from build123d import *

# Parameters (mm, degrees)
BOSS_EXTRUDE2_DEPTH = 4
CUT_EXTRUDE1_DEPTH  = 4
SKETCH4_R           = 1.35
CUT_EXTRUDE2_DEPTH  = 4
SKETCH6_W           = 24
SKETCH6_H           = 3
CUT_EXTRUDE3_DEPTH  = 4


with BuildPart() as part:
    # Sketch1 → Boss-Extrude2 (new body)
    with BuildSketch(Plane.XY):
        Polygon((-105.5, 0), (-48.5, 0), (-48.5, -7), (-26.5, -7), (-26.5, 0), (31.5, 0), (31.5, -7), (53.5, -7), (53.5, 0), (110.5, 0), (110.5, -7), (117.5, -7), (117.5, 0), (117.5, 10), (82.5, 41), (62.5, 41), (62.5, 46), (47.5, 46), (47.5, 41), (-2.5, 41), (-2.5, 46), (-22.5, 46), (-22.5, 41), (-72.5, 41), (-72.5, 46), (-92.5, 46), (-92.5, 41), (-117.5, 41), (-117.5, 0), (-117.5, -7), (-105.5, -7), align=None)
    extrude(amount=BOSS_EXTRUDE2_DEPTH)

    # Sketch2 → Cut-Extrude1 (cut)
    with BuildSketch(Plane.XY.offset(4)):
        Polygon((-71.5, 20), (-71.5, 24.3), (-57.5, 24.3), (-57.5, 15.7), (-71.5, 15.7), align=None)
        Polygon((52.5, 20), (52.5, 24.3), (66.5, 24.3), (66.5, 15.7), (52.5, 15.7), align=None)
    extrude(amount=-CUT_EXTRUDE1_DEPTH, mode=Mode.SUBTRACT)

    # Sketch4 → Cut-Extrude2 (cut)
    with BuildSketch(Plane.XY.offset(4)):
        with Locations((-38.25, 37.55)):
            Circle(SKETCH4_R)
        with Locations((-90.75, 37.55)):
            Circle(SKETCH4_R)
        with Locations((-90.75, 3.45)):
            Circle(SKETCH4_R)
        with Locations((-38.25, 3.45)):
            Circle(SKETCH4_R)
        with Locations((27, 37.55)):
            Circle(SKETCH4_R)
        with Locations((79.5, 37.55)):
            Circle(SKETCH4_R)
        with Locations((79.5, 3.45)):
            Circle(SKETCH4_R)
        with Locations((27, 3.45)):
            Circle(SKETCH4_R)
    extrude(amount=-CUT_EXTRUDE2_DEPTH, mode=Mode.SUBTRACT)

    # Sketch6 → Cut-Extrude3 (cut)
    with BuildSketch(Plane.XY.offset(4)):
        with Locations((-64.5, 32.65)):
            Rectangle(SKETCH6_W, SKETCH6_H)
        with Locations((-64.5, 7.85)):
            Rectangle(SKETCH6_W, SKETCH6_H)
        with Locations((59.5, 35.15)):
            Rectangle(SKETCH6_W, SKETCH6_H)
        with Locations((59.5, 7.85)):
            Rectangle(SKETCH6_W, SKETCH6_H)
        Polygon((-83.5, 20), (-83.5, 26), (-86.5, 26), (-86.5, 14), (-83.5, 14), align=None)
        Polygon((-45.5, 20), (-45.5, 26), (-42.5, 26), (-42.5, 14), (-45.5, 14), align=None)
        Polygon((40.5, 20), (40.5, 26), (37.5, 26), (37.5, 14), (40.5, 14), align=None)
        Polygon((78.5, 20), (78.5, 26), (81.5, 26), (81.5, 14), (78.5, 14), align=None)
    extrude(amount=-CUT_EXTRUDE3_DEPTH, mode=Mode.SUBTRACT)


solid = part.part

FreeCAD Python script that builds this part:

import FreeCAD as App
import Part
import Sketcher
from FreeCAD import Vector

doc = App.newDocument("Part")
body = doc.addObject("PartDesign::Body", "Body")

# Sketch on XY plane
sketch1 = body.newObject("Sketcher::SketchObject", "Sketch")
sketch1.AttachmentSupport = (doc.getObject("XY_Plane"), [""])
sketch1.MapMode = "FlatFace"
sketch1.addGeometry(Part.LineSegment(Vector(-106, 0, 0), Vector(-48, 0, 0)), False)
sketch1.addGeometry(Part.LineSegment(Vector(-48, 0, 0), Vector(-48, -7, 0)), False)
sketch1.addGeometry(Part.LineSegment(Vector(-48, -7, 0), Vector(-26, -7, 0)), False)
sketch1.addGeometry(Part.LineSegment(Vector(-26, -7, 0), Vector(-26, 0, 0)), False)
sketch1.addGeometry(Part.LineSegment(Vector(-26, 0, 0), Vector(32, 0, 0)), False)
sketch1.addGeometry(Part.LineSegment(Vector(32, 0, 0), Vector(32, -7, 0)), False)
sketch1.addGeometry(Part.LineSegment(Vector(32, -7, 0), Vector(54, -7, 0)), False)
sketch1.addGeometry(Part.LineSegment(Vector(54, -7, 0), Vector(54, 0, 0)), False)
sketch1.addGeometry(Part.LineSegment(Vector(54, 0, 0), Vector(110, 0, 0)), False)
sketch1.addGeometry(Part.LineSegment(Vector(110, 0, 0), Vector(110, -7, 0)), False)
sketch1.addGeometry(Part.LineSegment(Vector(110, -7, 0), Vector(118, -7, 0)), False)
sketch1.addGeometry(Part.LineSegment(Vector(118, -7, 0), Vector(118, 10, 0)), False)
sketch1.addGeometry(Part.LineSegment(Vector(118, 10, 0), Vector(82, 41, 0)), False)
sketch1.addGeometry(Part.LineSegment(Vector(82, 41, 0), Vector(62, 41, 0)), False)
sketch1.addGeometry(Part.LineSegment(Vector(62, 41, 0), Vector(62, 46, 0)), False)
sketch1.addGeometry(Part.LineSegment(Vector(62, 46, 0), Vector(48, 46, 0)), False)
sketch1.addGeometry(Part.LineSegment(Vector(48, 46, 0), Vector(48, 41, 0)), False)
sketch1.addGeometry(Part.LineSegment(Vector(48, 41, 0), Vector(-2, 41, 0)), False)
sketch1.addGeometry(Part.LineSegment(Vector(-2, 41, 0), Vector(-2, 46, 0)), False)
sketch1.addGeometry(Part.LineSegment(Vector(-2, 46, 0), Vector(-22, 46, 0)), False)
sketch1.addGeometry(Part.LineSegment(Vector(-22, 46, 0), Vector(-22, 41, 0)), False)
sketch1.addGeometry(Part.LineSegment(Vector(-22, 41, 0), Vector(-72, 41, 0)), False)
sketch1.addGeometry(Part.LineSegment(Vector(-72, 41, 0), Vector(-72, 46, 0)), False)
sketch1.addGeometry(Part.LineSegment(Vector(-72, 46, 0), Vector(-92, 46, 0)), False)
sketch1.addGeometry(Part.LineSegment(Vector(-92, 46, 0), Vector(-92, 41, 0)), False)
sketch1.addGeometry(Part.LineSegment(Vector(-92, 41, 0), Vector(-118, 41, 0)), False)
sketch1.addGeometry(Part.LineSegment(Vector(-118, 41, 0), Vector(-118, -7, 0)), False)
sketch1.addGeometry(Part.LineSegment(Vector(-118, -7, 0), Vector(-106, -7, 0)), False)
sketch1.addGeometry(Part.LineSegment(Vector(-106, -7, 0), Vector(-106, 0, 0)), False)
sketch1.addConstraint(Sketcher.Constraint("Coincident", 0, 2, 1, 1))
sketch1.addConstraint(Sketcher.Constraint("Coincident", 1, 2, 2, 1))
sketch1.addConstraint(Sketcher.Constraint("Coincident", 2, 2, 3, 1))
sketch1.addConstraint(Sketcher.Constraint("Coincident", 3, 2, 4, 1))
sketch1.addConstraint(Sketcher.Constraint("Coincident", 4, 2, 5, 1))
sketch1.addConstraint(Sketcher.Constraint("Coincident", 5, 2, 6, 1))
sketch1.addConstraint(Sketcher.Constraint("Coincident", 6, 2, 7, 1))
sketch1.addConstraint(Sketcher.Constraint("Coincident", 7, 2, 8, 1))
sketch1.addConstraint(Sketcher.Constraint("Coincident", 8, 2, 9, 1))
sketch1.addConstraint(Sketcher.Constraint("Coincident", 9, 2, 10, 1))
sketch1.addConstraint(Sketcher.Constraint("Coincident", 10, 2, 11, 1))
sketch1.addConstraint(Sketcher.Constraint("Coincident", 11, 2, 12, 1))
sketch1.addConstraint(Sketcher.Constraint("Coincident", 12, 2, 13, 1))
sketch1.addConstraint(Sketcher.Constraint("Coincident", 13, 2, 14, 1))
sketch1.addConstraint(Sketcher.Constraint("Coincident", 14, 2, 15, 1))
sketch1.addConstraint(Sketcher.Constraint("Coincident", 15, 2, 16, 1))
sketch1.addConstraint(Sketcher.Constraint("Coincident", 16, 2, 17, 1))
sketch1.addConstraint(Sketcher.Constraint("Coincident", 17, 2, 18, 1))
sketch1.addConstraint(Sketcher.Constraint("Coincident", 18, 2, 19, 1))
sketch1.addConstraint(Sketcher.Constraint("Coincident", 19, 2, 20, 1))
sketch1.addConstraint(Sketcher.Constraint("Coincident", 20, 2, 21, 1))
sketch1.addConstraint(Sketcher.Constraint("Coincident", 21, 2, 22, 1))
sketch1.addConstraint(Sketcher.Constraint("Coincident", 22, 2, 23, 1))
sketch1.addConstraint(Sketcher.Constraint("Coincident", 23, 2, 24, 1))
sketch1.addConstraint(Sketcher.Constraint("Coincident", 24, 2, 25, 1))
sketch1.addConstraint(Sketcher.Constraint("Coincident", 25, 2, 26, 1))
sketch1.addConstraint(Sketcher.Constraint("Coincident", 26, 2, 27, 1))
sketch1.addConstraint(Sketcher.Constraint("Coincident", 27, 2, 28, 1))
sketch1.addConstraint(Sketcher.Constraint("Coincident", 28, 2, 0, 1))
sketch1.addConstraint(Sketcher.Constraint("Horizontal", 0))
sketch1.addConstraint(Sketcher.Constraint("Vertical", 1))
sketch1.addConstraint(Sketcher.Constraint("Horizontal", 2))
sketch1.addConstraint(Sketcher.Constraint("Vertical", 3))
sketch1.addConstraint(Sketcher.Constraint("Horizontal", 4))
sketch1.addConstraint(Sketcher.Constraint("Vertical", 5))
sketch1.addConstraint(Sketcher.Constraint("Horizontal", 6))
sketch1.addConstraint(Sketcher.Constraint("Vertical", 7))
sketch1.addConstraint(Sketcher.Constraint("Horizontal", 8))
sketch1.addConstraint(Sketcher.Constraint("Vertical", 9))
sketch1.addConstraint(Sketcher.Constraint("Horizontal", 10))
sketch1.addConstraint(Sketcher.Constraint("Vertical", 11))
sketch1.addConstraint(Sketcher.Constraint("Horizontal", 13))
sketch1.addConstraint(Sketcher.Constraint("Vertical", 14))
sketch1.addConstraint(Sketcher.Constraint("Horizontal", 15))
sketch1.addConstraint(Sketcher.Constraint("Vertical", 16))
sketch1.addConstraint(Sketcher.Constraint("Horizontal", 17))
sketch1.addConstraint(Sketcher.Constraint("Vertical", 18))
sketch1.addConstraint(Sketcher.Constraint("Horizontal", 19))
sketch1.addConstraint(Sketcher.Constraint("Vertical", 20))
sketch1.addConstraint(Sketcher.Constraint("Horizontal", 21))
sketch1.addConstraint(Sketcher.Constraint("Vertical", 22))
sketch1.addConstraint(Sketcher.Constraint("Horizontal", 23))
sketch1.addConstraint(Sketcher.Constraint("Vertical", 24))
sketch1.addConstraint(Sketcher.Constraint("Horizontal", 25))
sketch1.addConstraint(Sketcher.Constraint("Vertical", 26))
sketch1.addConstraint(Sketcher.Constraint("Horizontal", 27))
sketch1.addConstraint(Sketcher.Constraint("Vertical", 28))
sketch1.addConstraint(Sketcher.Constraint("Symmetric", 10, 2, 26, 2, -2))
sketch1.addConstraint(Sketcher.Constraint("PointOnObject", 0, 2, -1))
sketch1.addConstraint(Sketcher.Constraint("PointOnObject", 3, 2, -1))
sketch1.addConstraint(Sketcher.Constraint("PointOnObject", 7, 2, -1))
sketch1.addConstraint(Sketcher.Constraint("Horizontal", 2, 2, 5, 2))
sketch1.addConstraint(Sketcher.Constraint("Horizontal", 6, 2, 9, 2))
sketch1.addConstraint(Sketcher.Constraint("Horizontal", 13, 2, 16, 2))
sketch1.addConstraint(Sketcher.Constraint("Horizontal", 15, 2, 18, 2))
sketch1.addConstraint(Sketcher.Constraint("Horizontal", 17, 2, 20, 2))
sketch1.addConstraint(Sketcher.Constraint("Horizontal", 19, 2, 22, 2))
sketch1.addConstraint(Sketcher.Constraint("Horizontal", 21, 2, 24, 2))
sketch1.addConstraint(Sketcher.Constraint("Equal", 2, 6))
sketch1.addConstraint(Sketcher.Constraint("Equal", 0, 8))
sketch1.addConstraint(Sketcher.Constraint("Equal", 13, 19))
sketch1.addConstraint(Sketcher.Constraint("Equal", 17, 21))
sketch1.addConstraint(Sketcher.Constraint("Equal", 19, 23))
sketch1.addConstraint(Sketcher.Constraint("Equal", 10, 1))
sketch1.addConstraint(Sketcher.Constraint("DistanceX", 0, 1, 0, 2, 57.0))
sketch1.addConstraint(Sketcher.Constraint("DistanceX", 2, 1, 2, 2, 22.0))
sketch1.addConstraint(Sketcher.Constraint("DistanceX", 4, 1, 4, 2, 58.0))
sketch1.addConstraint(Sketcher.Constraint("DistanceX", 10, 1, 10, 2, 7.0))
sketch1.addConstraint(Sketcher.Constraint("DistanceX", 13, 2, 13, 1, 20.0))
sketch1.addConstraint(Sketcher.Constraint("DistanceX", 15, 2, 15, 1, 15.0))
sketch1.addConstraint(Sketcher.Constraint("DistanceX", 17, 2, 17, 1, 50.0))
sketch1.addConstraint(Sketcher.Constraint("DistanceX", 25, 2, 25, 1, 25.0))
sketch1.addConstraint(Sketcher.Constraint("DistanceX", 27, 1, 27, 2, 12.0))
sketch1.addConstraint(Sketcher.Constraint("DistanceY", 11, 1, 11, 2, 17.0))
sketch1.addConstraint(Sketcher.Constraint("DistanceY", 14, 1, 14, 2, 5.0))
sketch1.addConstraint(Sketcher.Constraint("DistanceY", 26, 2, 26, 1, 48.0))
pad1 = body.newObject("PartDesign::Pad", "Pad")
pad1.Profile = sketch1
pad1.Length = 4

# Sketch on XY plane
sketch2 = body.newObject("Sketcher::SketchObject", "Sketch001")
sketch2.AttachmentSupport = (doc.getObject("XY_Plane"), [""])
sketch2.MapMode = "FlatFace"
sketch2.AttachmentOffset = App.Placement(Vector(0, 0, 4), App.Rotation())
sketch2.addGeometry(Part.LineSegment(Vector(-72, 24, 0), Vector(-72, 16, 0)), False)
sketch2.addGeometry(Part.LineSegment(Vector(-72, 16, 0), Vector(-58, 16, 0)), False)
sketch2.addGeometry(Part.LineSegment(Vector(-58, 16, 0), Vector(-58, 24, 0)), False)
sketch2.addGeometry(Part.LineSegment(Vector(-58, 24, 0), Vector(-72, 24, 0)), False)
sketch2.addGeometry(Part.LineSegment(Vector(52, 24, 0), Vector(52, 16, 0)), False)
sketch2.addGeometry(Part.LineSegment(Vector(52, 16, 0), Vector(66, 16, 0)), False)
sketch2.addGeometry(Part.LineSegment(Vector(66, 16, 0), Vector(66, 24, 0)), False)
sketch2.addGeometry(Part.LineSegment(Vector(66, 24, 0), Vector(52, 24, 0)), False)
sketch2.addConstraint(Sketcher.Constraint("Coincident", 0, 2, 1, 1))
sketch2.addConstraint(Sketcher.Constraint("Coincident", 1, 2, 2, 1))
sketch2.addConstraint(Sketcher.Constraint("Coincident", 2, 2, 3, 1))
sketch2.addConstraint(Sketcher.Constraint("Coincident", 3, 2, 0, 1))
sketch2.addConstraint(Sketcher.Constraint("Coincident", 4, 2, 5, 1))
sketch2.addConstraint(Sketcher.Constraint("Coincident", 5, 2, 6, 1))
sketch2.addConstraint(Sketcher.Constraint("Coincident", 6, 2, 7, 1))
sketch2.addConstraint(Sketcher.Constraint("Coincident", 7, 2, 4, 1))
sketch2.addConstraint(Sketcher.Constraint("Vertical", 0))
sketch2.addConstraint(Sketcher.Constraint("Horizontal", 1))
sketch2.addConstraint(Sketcher.Constraint("Vertical", 2))
sketch2.addConstraint(Sketcher.Constraint("Horizontal", 3))
sketch2.addConstraint(Sketcher.Constraint("Vertical", 4))
sketch2.addConstraint(Sketcher.Constraint("Horizontal", 5))
sketch2.addConstraint(Sketcher.Constraint("Vertical", 6))
sketch2.addConstraint(Sketcher.Constraint("Horizontal", 7))
sketch2.addConstraint(Sketcher.Constraint("Horizontal", 1, 2, 4, 2))
sketch2.addConstraint(Sketcher.Constraint("Horizontal", 3, 2, 6, 2))
sketch2.addConstraint(Sketcher.Constraint("Equal", 3, 5))
sketch2.addConstraint(Sketcher.Constraint("DistanceX", 1, 1, 1, 2, 14.0))
sketch2.addConstraint(Sketcher.Constraint("DistanceY", 0, 2, 0, 1, 8.6))
sketch2.addConstraint(Sketcher.Constraint("DistanceX", 1, 2, 4, 2, 110.0))
sketch2.addConstraint(Sketcher.Constraint("DistanceX", 0, 2, -1, 1, 71.5))
sketch2.addConstraint(Sketcher.Constraint("DistanceY", -1, 1, 0, 2, 15.7))
pocket1 = body.newObject("PartDesign::Pocket", "Pocket")
pocket1.Profile = sketch2
pocket1.Length = 4

# Sketch on XY plane
sketch3 = body.newObject("Sketcher::SketchObject", "Sketch002")
sketch3.AttachmentSupport = (doc.getObject("XY_Plane"), [""])
sketch3.MapMode = "FlatFace"
sketch3.AttachmentOffset = App.Placement(Vector(0, 0, 4), App.Rotation())
sketch3.addGeometry(Part.Circle(Vector(-38.2, 37.5, 0), Vector(0, 0, 1), 1.4), False)
sketch3.addGeometry(Part.Circle(Vector(-90.8, 37.5, 0), Vector(0, 0, 1), 1.4), False)
sketch3.addGeometry(Part.Circle(Vector(-90.8, 3.5, 0), Vector(0, 0, 1), 1.4), False)
sketch3.addGeometry(Part.Circle(Vector(-38.2, 3.5, 0), Vector(0, 0, 1), 1.4), False)
sketch3.addGeometry(Part.Circle(Vector(27, 37.5, 0), Vector(0, 0, 1), 1.4), False)
sketch3.addGeometry(Part.Circle(Vector(79.5, 37.5, 0), Vector(0, 0, 1), 1.4), False)
sketch3.addGeometry(Part.Circle(Vector(79.5, 3.5, 0), Vector(0, 0, 1), 1.4), False)
sketch3.addGeometry(Part.Circle(Vector(27, 3.5, 0), Vector(0, 0, 1), 1.4), False)
sketch3.addConstraint(Sketcher.Constraint("Equal", 0, 1))
sketch3.addConstraint(Sketcher.Constraint("Equal", 1, 2))
sketch3.addConstraint(Sketcher.Constraint("Equal", 2, 3))
sketch3.addConstraint(Sketcher.Constraint("Equal", 3, 4))
sketch3.addConstraint(Sketcher.Constraint("Equal", 4, 5))
sketch3.addConstraint(Sketcher.Constraint("Equal", 5, 6))
sketch3.addConstraint(Sketcher.Constraint("Equal", 6, 7))
sketch3.addConstraint(Sketcher.Constraint("Horizontal", 0, 3, 1, 3))
sketch3.addConstraint(Sketcher.Constraint("Horizontal", 2, 3, 3, 3))
sketch3.addConstraint(Sketcher.Constraint("Horizontal", 1, 3, 4, 3))
sketch3.addConstraint(Sketcher.Constraint("Horizontal", 4, 3, 5, 3))
sketch3.addConstraint(Sketcher.Constraint("Horizontal", 3, 3, 6, 3))
sketch3.addConstraint(Sketcher.Constraint("Horizontal", 6, 3, 7, 3))
sketch3.addConstraint(Sketcher.Constraint("Vertical", 1, 3, 2, 3))
sketch3.addConstraint(Sketcher.Constraint("Vertical", 0, 3, 3, 3))
sketch3.addConstraint(Sketcher.Constraint("Vertical", 5, 3, 6, 3))
sketch3.addConstraint(Sketcher.Constraint("Vertical", 4, 3, 7, 3))
sketch3.addConstraint(Sketcher.Constraint("Diameter", 0, 2.7))
sketch3.addConstraint(Sketcher.Constraint("DistanceX", -1, 1, 4, 3, 27.0))
sketch3.addConstraint(Sketcher.Constraint("DistanceX", -1, 1, 5, 3, 79.5))
sketch3.addConstraint(Sketcher.Constraint("DistanceX", 1, 3, 0, 3, 52.5))
sketch3.addConstraint(Sketcher.Constraint("DistanceY", 2, 3, 1, 3, 34.1))
sketch3.addConstraint(Sketcher.Constraint("DistanceX", 0, 3, -1, 1, 38.25))
sketch3.addConstraint(Sketcher.Constraint("DistanceY", -1, 1, 0, 3, 37.55))
pocket2 = body.newObject("PartDesign::Pocket", "Pocket001")
pocket2.Profile = sketch3
pocket2.Length = 4

# Sketch on XY plane
sketch4 = body.newObject("Sketcher::SketchObject", "Sketch003")
sketch4.AttachmentSupport = (doc.getObject("XY_Plane"), [""])
sketch4.MapMode = "FlatFace"
sketch4.AttachmentOffset = App.Placement(Vector(0, 0, 4), App.Rotation())
sketch4.addGeometry(Part.LineSegment(Vector(-76.5, 34.1, 0), Vector(-76.5, 31.1, 0)), False)
sketch4.addGeometry(Part.LineSegment(Vector(-76.5, 31.1, 0), Vector(-52.5, 31.1, 0)), False)
sketch4.addGeometry(Part.LineSegment(Vector(-52.5, 31.1, 0), Vector(-52.5, 34.1, 0)), False)
sketch4.addGeometry(Part.LineSegment(Vector(-52.5, 34.1, 0), Vector(-76.5, 34.1, 0)), False)
sketch4.addGeometry(Part.LineSegment(Vector(-76.5, 9.3, 0), Vector(-76.5, 6.3, 0)), False)
sketch4.addGeometry(Part.LineSegment(Vector(-76.5, 6.3, 0), Vector(-52.5, 6.3, 0)), False)
sketch4.addGeometry(Part.LineSegment(Vector(-52.5, 6.3, 0), Vector(-52.5, 9.3, 0)), False)
sketch4.addGeometry(Part.LineSegment(Vector(-52.5, 9.3, 0), Vector(-76.5, 9.3, 0)), False)
sketch4.addGeometry(Part.LineSegment(Vector(47.5, 36.6, 0), Vector(47.5, 33.6, 0)), False)
sketch4.addGeometry(Part.LineSegment(Vector(47.5, 33.6, 0), Vector(71.5, 33.6, 0)), False)
sketch4.addGeometry(Part.LineSegment(Vector(71.5, 33.6, 0), Vector(71.5, 36.6, 0)), False)
sketch4.addGeometry(Part.LineSegment(Vector(71.5, 36.6, 0), Vector(47.5, 36.6, 0)), False)
sketch4.addGeometry(Part.LineSegment(Vector(47.5, 9.3, 0), Vector(47.5, 6.3, 0)), False)
sketch4.addGeometry(Part.LineSegment(Vector(47.5, 6.3, 0), Vector(71.5, 6.3, 0)), False)
sketch4.addGeometry(Part.LineSegment(Vector(71.5, 6.3, 0), Vector(71.5, 9.3, 0)), False)
sketch4.addGeometry(Part.LineSegment(Vector(71.5, 9.3, 0), Vector(47.5, 9.3, 0)), False)
sketch4.addGeometry(Part.LineSegment(Vector(-83.5, 26, 0), Vector(-86.5, 26, 0)), False)
sketch4.addGeometry(Part.LineSegment(Vector(-86.5, 26, 0), Vector(-86.5, 14, 0)), False)
sketch4.addGeometry(Part.LineSegment(Vector(-86.5, 14, 0), Vector(-83.5, 14, 0)), False)
sketch4.addGeometry(Part.LineSegment(Vector(-83.5, 14, 0), Vector(-83.5, 26, 0)), False)
sketch4.addGeometry(Part.LineSegment(Vector(-45.5, 26, 0), Vector(-45.5, 14, 0)), False)
sketch4.addGeometry(Part.LineSegment(Vector(-45.5, 14, 0), Vector(-42.5, 14, 0)), False)
sketch4.addGeometry(Part.LineSegment(Vector(-42.5, 14, 0), Vector(-42.5, 26, 0)), False)
sketch4.addGeometry(Part.LineSegment(Vector(-42.5, 26, 0), Vector(-45.5, 26, 0)), False)
sketch4.addGeometry(Part.LineSegment(Vector(40.5, 26, 0), Vector(37.5, 26, 0)), False)
sketch4.addGeometry(Part.LineSegment(Vector(37.5, 26, 0), Vector(37.5, 14, 0)), False)
sketch4.addGeometry(Part.LineSegment(Vector(37.5, 14, 0), Vector(40.5, 14, 0)), False)
sketch4.addGeometry(Part.LineSegment(Vector(40.5, 14, 0), Vector(40.5, 26, 0)), False)
sketch4.addGeometry(Part.LineSegment(Vector(78.5, 26, 0), Vector(78.5, 14, 0)), False)
sketch4.addGeometry(Part.LineSegment(Vector(78.5, 14, 0), Vector(81.5, 14, 0)), False)
sketch4.addGeometry(Part.LineSegment(Vector(81.5, 14, 0), Vector(81.5, 26, 0)), False)
sketch4.addGeometry(Part.LineSegment(Vector(81.5, 26, 0), Vector(78.5, 26, 0)), False)
sketch4.addConstraint(Sketcher.Constraint("Coincident", 0, 2, 1, 1))
sketch4.addConstraint(Sketcher.Constraint("Coincident", 1, 2, 2, 1))
sketch4.addConstraint(Sketcher.Constraint("Coincident", 2, 2, 3, 1))
sketch4.addConstraint(Sketcher.Constraint("Coincident", 3, 2, 0, 1))
sketch4.addConstraint(Sketcher.Constraint("Coincident", 4, 2, 5, 1))
sketch4.addConstraint(Sketcher.Constraint("Coincident", 5, 2, 6, 1))
sketch4.addConstraint(Sketcher.Constraint("Coincident", 6, 2, 7, 1))
sketch4.addConstraint(Sketcher.Constraint("Coincident", 7, 2, 4, 1))
sketch4.addConstraint(Sketcher.Constraint("Coincident", 8, 2, 9, 1))
sketch4.addConstraint(Sketcher.Constraint("Coincident", 9, 2, 10, 1))
sketch4.addConstraint(Sketcher.Constraint("Coincident", 10, 2, 11, 1))
sketch4.addConstraint(Sketcher.Constraint("Coincident", 11, 2, 8, 1))
sketch4.addConstraint(Sketcher.Constraint("Coincident", 12, 2, 13, 1))
sketch4.addConstraint(Sketcher.Constraint("Coincident", 13, 2, 14, 1))
sketch4.addConstraint(Sketcher.Constraint("Coincident", 14, 2, 15, 1))
sketch4.addConstraint(Sketcher.Constraint("Coincident", 15, 2, 12, 1))
sketch4.addConstraint(Sketcher.Constraint("Coincident", 16, 2, 17, 1))
sketch4.addConstraint(Sketcher.Constraint("Coincident", 17, 2, 18, 1))
sketch4.addConstraint(Sketcher.Constraint("Coincident", 18, 2, 19, 1))
sketch4.addConstraint(Sketcher.Constraint("Coincident", 19, 2, 16, 1))
sketch4.addConstraint(Sketcher.Constraint("Coincident", 20, 2, 21, 1))
sketch4.addConstraint(Sketcher.Constraint("Coincident", 21, 2, 22, 1))
sketch4.addConstraint(Sketcher.Constraint("Coincident", 22, 2, 23, 1))
sketch4.addConstraint(Sketcher.Constraint("Coincident", 23, 2, 20, 1))
sketch4.addConstraint(Sketcher.Constraint("Coincident", 24, 2, 25, 1))
sketch4.addConstraint(Sketcher.Constraint("Coincident", 25, 2, 26, 1))
sketch4.addConstraint(Sketcher.Constraint("Coincident", 26, 2, 27, 1))
sketch4.addConstraint(Sketcher.Constraint("Coincident", 27, 2, 24, 1))
sketch4.addConstraint(Sketcher.Constraint("Coincident", 28, 2, 29, 1))
sketch4.addConstraint(Sketcher.Constraint("Coincident", 29, 2, 30, 1))
sketch4.addConstraint(Sketcher.Constraint("Coincident", 30, 2, 31, 1))
sketch4.addConstraint(Sketcher.Constraint("Coincident", 31, 2, 28, 1))
sketch4.addConstraint(Sketcher.Constraint("Vertical", 0))
sketch4.addConstraint(Sketcher.Constraint("Horizontal", 1))
sketch4.addConstraint(Sketcher.Constraint("Vertical", 2))
sketch4.addConstraint(Sketcher.Constraint("Horizontal", 3))
sketch4.addConstraint(Sketcher.Constraint("Vertical", 4))
sketch4.addConstraint(Sketcher.Constraint("Horizontal", 5))
sketch4.addConstraint(Sketcher.Constraint("Vertical", 6))
sketch4.addConstraint(Sketcher.Constraint("Horizontal", 7))
sketch4.addConstraint(Sketcher.Constraint("Vertical", 8))
sketch4.addConstraint(Sketcher.Constraint("Horizontal", 9))
sketch4.addConstraint(Sketcher.Constraint("Vertical", 10))
sketch4.addConstraint(Sketcher.Constraint("Horizontal", 11))
sketch4.addConstraint(Sketcher.Constraint("Vertical", 12))
sketch4.addConstraint(Sketcher.Constraint("Horizontal", 13))
sketch4.addConstraint(Sketcher.Constraint("Vertical", 14))
sketch4.addConstraint(Sketcher.Constraint("Horizontal", 15))
sketch4.addConstraint(Sketcher.Constraint("Horizontal", 16))
sketch4.addConstraint(Sketcher.Constraint("Vertical", 17))
sketch4.addConstraint(Sketcher.Constraint("Horizontal", 18))
sketch4.addConstraint(Sketcher.Constraint("Vertical", 19))
sketch4.addConstraint(Sketcher.Constraint("Vertical", 20))
sketch4.addConstraint(Sketcher.Constraint("Horizontal", 21))
sketch4.addConstraint(Sketcher.Constraint("Vertical", 22))
sketch4.addConstraint(Sketcher.Constraint("Horizontal", 23))
sketch4.addConstraint(Sketcher.Constraint("Horizontal", 24))
sketch4.addConstraint(Sketcher.Constraint("Vertical", 25))
sketch4.addConstraint(Sketcher.Constraint("Horizontal", 26))
sketch4.addConstraint(Sketcher.Constraint("Vertical", 27))
sketch4.addConstraint(Sketcher.Constraint("Vertical", 28))
sketch4.addConstraint(Sketcher.Constraint("Horizontal", 29))
sketch4.addConstraint(Sketcher.Constraint("Vertical", 30))
sketch4.addConstraint(Sketcher.Constraint("Horizontal", 31))
sketch4.addConstraint(Sketcher.Constraint("Horizontal", 5, 2, 12, 2))
sketch4.addConstraint(Sketcher.Constraint("Horizontal", 7, 2, 14, 2))
sketch4.addConstraint(Sketcher.Constraint("Horizontal", 18, 2, 20, 2))
sketch4.addConstraint(Sketcher.Constraint("Horizontal", 19, 2, 22, 2))
sketch4.addConstraint(Sketcher.Constraint("Horizontal", 23, 2, 24, 2))
sketch4.addConstraint(Sketcher.Constraint("Horizontal", 21, 2, 25, 2))
sketch4.addConstraint(Sketcher.Constraint("Horizontal", 26, 2, 28, 2))
sketch4.addConstraint(Sketcher.Constraint("Horizontal", 27, 2, 30, 2))
sketch4.addConstraint(Sketcher.Constraint("Vertical", 3, 2, 4, 2))
sketch4.addConstraint(Sketcher.Constraint("Vertical", 2, 2, 5, 2))
sketch4.addConstraint(Sketcher.Constraint("Vertical", 11, 2, 12, 2))
sketch4.addConstraint(Sketcher.Constraint("Vertical", 10, 2, 13, 2))
sketch4.addConstraint(Sketcher.Constraint("Equal", 7, 9))
sketch4.addConstraint(Sketcher.Constraint("Equal", 18, 21))
sketch4.addConstraint(Sketcher.Constraint("Equal", 23, 24))
sketch4.addConstraint(Sketcher.Constraint("Equal", 26, 29))
sketch4.addConstraint(Sketcher.Constraint("Equal", 31, 0))
sketch4.addConstraint(Sketcher.Constraint("Equal", 2, 4))
sketch4.addConstraint(Sketcher.Constraint("Equal", 6, 8))
sketch4.addConstraint(Sketcher.Constraint("DistanceX", 1, 1, 1, 2, 24.0))
sketch4.addConstraint(Sketcher.Constraint("DistanceX", 16, 2, 16, 1, 3.0))
sketch4.addConstraint(Sketcher.Constraint("DistanceY", 17, 2, 17, 1, 12.0))
sketch4.addConstraint(Sketcher.Constraint("DistanceY", -1, 1, 16, 2, 26.0))
sketch4.addConstraint(Sketcher.Constraint("DistanceX", 2, 2, 8, 2, 100.0))
sketch4.addConstraint(Sketcher.Constraint("DistanceX", 16, 2, 0, 2, 10.0))
sketch4.addConstraint(Sketcher.Constraint("DistanceX", 6, 2, 20, 2, 7.0))
sketch4.addConstraint(Sketcher.Constraint("DistanceX", 24, 2, 8, 2, 10.0))
sketch4.addConstraint(Sketcher.Constraint("DistanceX", 14, 2, 28, 2, 7.0))
sketch4.addConstraint(Sketcher.Constraint("DistanceX", 0, 2, -1, 1, 76.5))
sketch4.addConstraint(Sketcher.Constraint("DistanceY", 4, 2, 0, 2, 24.8))
sketch4.addConstraint(Sketcher.Constraint("DistanceY", 8, 2, 2, 2, 0.5))
sketch4.addConstraint(Sketcher.Constraint("DistanceY", -1, 1, 0, 2, 31.15))
pocket3 = body.newObject("PartDesign::Pocket", "Pocket002")
pocket3.Profile = sketch4
pocket3.Length = 4

doc.recompute()
